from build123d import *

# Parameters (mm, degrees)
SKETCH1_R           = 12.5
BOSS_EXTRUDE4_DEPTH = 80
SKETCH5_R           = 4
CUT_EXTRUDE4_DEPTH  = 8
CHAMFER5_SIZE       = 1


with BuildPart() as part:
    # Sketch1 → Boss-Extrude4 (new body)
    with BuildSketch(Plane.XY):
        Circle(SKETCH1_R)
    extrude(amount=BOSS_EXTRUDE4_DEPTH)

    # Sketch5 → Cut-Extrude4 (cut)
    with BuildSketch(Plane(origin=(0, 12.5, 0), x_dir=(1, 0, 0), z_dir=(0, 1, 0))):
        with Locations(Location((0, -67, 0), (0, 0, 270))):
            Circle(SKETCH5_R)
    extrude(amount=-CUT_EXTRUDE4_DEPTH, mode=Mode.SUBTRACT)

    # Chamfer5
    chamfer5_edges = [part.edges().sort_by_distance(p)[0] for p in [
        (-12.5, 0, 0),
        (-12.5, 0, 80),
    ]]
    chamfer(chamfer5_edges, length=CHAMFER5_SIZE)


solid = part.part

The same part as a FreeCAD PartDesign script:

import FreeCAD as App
import Part
import Sketcher
from FreeCAD import Vector
Q = App.Units.Quantity


def edges_at(feature, points):
    """Names of the edges that pass closest to the given points."""
    edges = feature.Shape.Edges
    near = lambda p: min(range(len(edges)), key=lambda i: edges[i].distToShape(Part.Vertex(*p))[0])
    return sorted({f"Edge{near(p) + 1}" for p in points})

doc = App.newDocument("Part")
body = doc.addObject("PartDesign::Body", "Body")

# Sketch on XY plane
sketch1 = body.newObject("Sketcher::SketchObject", "Sketch")
sketch1.AttachmentSupport = (doc.getObject("XY_Plane"), [""])
sketch1.MapMode = "FlatFace"
sketch1.addGeometry(Part.Circle(Vector(0, 0, 0), Vector(0, 0, 1), 12), False)
sketch1.addConstraint([
    Sketcher.Constraint("Coincident", 0, 3, -1, 1),
    Sketcher.Constraint("Diameter", 0, Q("25 mm")),
])
pad1 = body.newObject("PartDesign::Pad", "Pad")
pad1.Profile = sketch1
pad1.Length = 80

# Sketch on XZ plane
sketch2 = body.newObject("Sketcher::SketchObject", "Sketch001")
sketch2.AttachmentSupport = (doc.getObject("XZ_Plane"), [""])
sketch2.MapMode = "FlatFace"
sketch2.AttachmentOffset = App.Placement(Vector(0, 0, -12.5), App.Rotation())
sketch2.addGeometry(Part.Circle(Vector(0, 67, 0), Vector(0, 0, 1), 4), False)
sketch2.addConstraint([
    Sketcher.Constraint("PointOnObject", 0, 3, -2),
    Sketcher.Constraint("Diameter", 0, Q("8 mm")),
    Sketcher.Constraint("DistanceY", -1, 1, 0, 3, Q("67 mm")),
])
pocket1 = body.newObject("PartDesign::Pocket", "Pocket")
pocket1.Profile = sketch2
pocket1.Length = 8
pocket1.Reversed = True
doc.recompute()

chamfer = body.newObject("PartDesign::Chamfer", "Chamfer")
chamfer.Base = (pocket1, edges_at(pocket1, [(-12.5, 0, 0), (-12.5, 0, 80)]))
chamfer.Size = 1

doc.recompute()
